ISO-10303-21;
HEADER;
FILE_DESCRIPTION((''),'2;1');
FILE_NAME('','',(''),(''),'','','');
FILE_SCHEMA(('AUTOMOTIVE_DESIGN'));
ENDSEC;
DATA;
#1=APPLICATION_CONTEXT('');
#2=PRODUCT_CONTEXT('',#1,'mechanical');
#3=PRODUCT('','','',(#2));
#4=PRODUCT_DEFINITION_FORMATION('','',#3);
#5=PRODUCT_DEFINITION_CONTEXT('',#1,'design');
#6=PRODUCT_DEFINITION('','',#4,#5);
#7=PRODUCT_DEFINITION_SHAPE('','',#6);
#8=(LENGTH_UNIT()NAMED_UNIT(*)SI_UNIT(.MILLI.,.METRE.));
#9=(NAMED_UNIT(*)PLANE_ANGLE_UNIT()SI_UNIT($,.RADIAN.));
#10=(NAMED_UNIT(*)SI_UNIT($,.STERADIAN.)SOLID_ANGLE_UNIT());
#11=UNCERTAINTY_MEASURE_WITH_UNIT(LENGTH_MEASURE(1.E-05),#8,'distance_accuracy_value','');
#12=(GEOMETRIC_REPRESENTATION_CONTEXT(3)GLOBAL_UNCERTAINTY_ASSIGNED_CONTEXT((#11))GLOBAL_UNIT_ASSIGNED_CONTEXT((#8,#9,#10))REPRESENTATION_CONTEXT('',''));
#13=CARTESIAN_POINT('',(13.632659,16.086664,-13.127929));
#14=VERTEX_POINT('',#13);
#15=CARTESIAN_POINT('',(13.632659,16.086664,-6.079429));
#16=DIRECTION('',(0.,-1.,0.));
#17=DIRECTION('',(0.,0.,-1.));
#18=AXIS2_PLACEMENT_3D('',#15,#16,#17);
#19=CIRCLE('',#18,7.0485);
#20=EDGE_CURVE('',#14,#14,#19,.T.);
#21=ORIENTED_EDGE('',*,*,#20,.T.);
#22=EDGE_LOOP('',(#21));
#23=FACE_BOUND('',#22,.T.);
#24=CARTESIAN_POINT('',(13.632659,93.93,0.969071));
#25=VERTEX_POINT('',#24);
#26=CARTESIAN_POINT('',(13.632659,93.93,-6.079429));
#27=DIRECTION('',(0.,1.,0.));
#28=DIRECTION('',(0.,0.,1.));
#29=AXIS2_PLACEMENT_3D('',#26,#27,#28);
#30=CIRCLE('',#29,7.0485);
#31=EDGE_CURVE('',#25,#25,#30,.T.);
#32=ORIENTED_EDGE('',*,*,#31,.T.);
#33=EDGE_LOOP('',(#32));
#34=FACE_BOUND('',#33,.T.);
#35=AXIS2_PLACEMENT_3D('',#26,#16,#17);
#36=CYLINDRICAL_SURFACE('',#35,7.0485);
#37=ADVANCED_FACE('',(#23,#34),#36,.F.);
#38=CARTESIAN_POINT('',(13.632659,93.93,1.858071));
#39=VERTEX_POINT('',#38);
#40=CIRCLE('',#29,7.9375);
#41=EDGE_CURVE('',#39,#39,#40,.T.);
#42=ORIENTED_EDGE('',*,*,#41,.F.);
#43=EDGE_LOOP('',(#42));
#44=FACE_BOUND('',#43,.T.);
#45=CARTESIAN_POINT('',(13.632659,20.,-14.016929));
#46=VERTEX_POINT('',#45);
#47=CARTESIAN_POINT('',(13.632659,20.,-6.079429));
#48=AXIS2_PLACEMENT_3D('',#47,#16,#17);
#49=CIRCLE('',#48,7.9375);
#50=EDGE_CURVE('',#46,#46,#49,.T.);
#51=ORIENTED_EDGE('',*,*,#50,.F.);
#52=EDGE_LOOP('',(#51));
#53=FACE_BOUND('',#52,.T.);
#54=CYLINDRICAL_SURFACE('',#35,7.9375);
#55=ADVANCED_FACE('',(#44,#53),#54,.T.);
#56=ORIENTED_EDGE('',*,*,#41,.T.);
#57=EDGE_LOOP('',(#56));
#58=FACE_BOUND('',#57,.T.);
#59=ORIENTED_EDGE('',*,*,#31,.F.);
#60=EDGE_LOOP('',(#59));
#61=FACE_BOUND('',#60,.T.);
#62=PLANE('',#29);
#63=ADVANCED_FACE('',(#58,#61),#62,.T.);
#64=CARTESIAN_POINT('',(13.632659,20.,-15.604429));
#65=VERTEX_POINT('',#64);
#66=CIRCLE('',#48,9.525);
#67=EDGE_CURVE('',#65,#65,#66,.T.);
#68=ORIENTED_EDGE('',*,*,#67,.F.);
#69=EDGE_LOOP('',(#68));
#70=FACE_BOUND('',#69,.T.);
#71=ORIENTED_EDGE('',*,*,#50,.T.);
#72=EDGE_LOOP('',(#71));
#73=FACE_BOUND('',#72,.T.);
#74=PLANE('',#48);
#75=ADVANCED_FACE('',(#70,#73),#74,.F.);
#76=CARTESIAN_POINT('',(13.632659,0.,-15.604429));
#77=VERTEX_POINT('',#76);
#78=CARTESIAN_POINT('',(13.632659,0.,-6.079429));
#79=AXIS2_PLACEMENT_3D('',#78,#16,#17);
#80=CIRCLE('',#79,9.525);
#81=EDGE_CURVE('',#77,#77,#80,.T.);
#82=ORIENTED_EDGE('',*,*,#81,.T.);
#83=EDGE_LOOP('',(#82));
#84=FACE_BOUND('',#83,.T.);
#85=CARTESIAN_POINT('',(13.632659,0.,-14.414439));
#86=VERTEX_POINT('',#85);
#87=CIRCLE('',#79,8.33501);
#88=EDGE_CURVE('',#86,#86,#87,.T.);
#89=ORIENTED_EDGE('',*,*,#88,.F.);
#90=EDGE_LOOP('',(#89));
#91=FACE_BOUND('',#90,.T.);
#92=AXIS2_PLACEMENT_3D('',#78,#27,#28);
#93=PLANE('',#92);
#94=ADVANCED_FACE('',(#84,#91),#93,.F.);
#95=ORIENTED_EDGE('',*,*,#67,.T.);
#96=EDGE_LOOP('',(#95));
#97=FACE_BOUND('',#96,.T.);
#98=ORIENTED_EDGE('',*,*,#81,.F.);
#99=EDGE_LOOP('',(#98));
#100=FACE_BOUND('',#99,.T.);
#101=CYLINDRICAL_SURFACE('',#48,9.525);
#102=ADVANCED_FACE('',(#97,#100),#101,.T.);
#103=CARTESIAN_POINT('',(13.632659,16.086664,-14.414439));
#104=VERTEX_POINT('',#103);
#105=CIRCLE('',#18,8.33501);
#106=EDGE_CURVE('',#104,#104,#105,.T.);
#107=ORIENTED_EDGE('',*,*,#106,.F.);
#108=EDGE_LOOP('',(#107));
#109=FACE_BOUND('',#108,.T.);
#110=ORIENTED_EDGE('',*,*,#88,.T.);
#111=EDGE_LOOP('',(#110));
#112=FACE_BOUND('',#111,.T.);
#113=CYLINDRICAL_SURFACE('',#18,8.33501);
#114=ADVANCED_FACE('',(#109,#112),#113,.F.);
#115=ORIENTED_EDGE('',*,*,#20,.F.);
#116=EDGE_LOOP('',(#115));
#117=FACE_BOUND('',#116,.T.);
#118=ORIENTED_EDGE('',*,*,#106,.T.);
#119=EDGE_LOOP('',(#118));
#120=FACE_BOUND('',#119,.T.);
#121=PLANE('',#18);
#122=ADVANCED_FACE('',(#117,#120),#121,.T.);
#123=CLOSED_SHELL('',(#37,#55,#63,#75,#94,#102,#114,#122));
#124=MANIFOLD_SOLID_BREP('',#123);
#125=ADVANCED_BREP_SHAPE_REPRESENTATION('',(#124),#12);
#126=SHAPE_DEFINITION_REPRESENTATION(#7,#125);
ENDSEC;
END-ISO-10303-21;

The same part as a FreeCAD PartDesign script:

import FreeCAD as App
import Part
import Sketcher
Q = App.Units.Quantity

doc = App.newDocument("Part")
body = doc.addObject("PartDesign::Body", "Body")

sketch1 = body.newObject("Sketcher::SketchObject", "Sketch")
sketch1.AttachmentSupport = (doc.getObject("XZ_Plane"), [""])
sketch1.MapMode = "FlatFace"
sketch1.addGeometry(Part.Circle(App.Vector(14, -6, 0), App.Vector(0, 0, 1), 8), False)
sketch1.addGeometry(Part.Circle(App.Vector(14, -6, 0), App.Vector(0, 0, 1), 7), False)
sketch1.addConstraint(Sketcher.Constraint("Coincident", 1, 3, 0, 3))
sketch1.addConstraint(Sketcher.Constraint("Diameter", 0, Q("0.625 in")))
sketch1.addConstraint(Sketcher.Constraint("Diameter", 1, Q("0.555 in")))
sketch1.addConstraint(Sketcher.Constraint("DistanceX", -1, 1, 0, 3, Q("13.632659 mm")))
sketch1.addConstraint(Sketcher.Constraint("DistanceY", 0, 3, -1, 1, Q("6.079429 mm")))
pad1 = body.newObject("PartDesign::Pad", "Pad")
pad1.Profile = sketch1
pad1.Length = 93.93
pad1.Reversed = True

sketch2 = body.newObject("Sketcher::SketchObject", "Sketch001")
sketch2.AttachmentSupport = (doc.getObject("XZ_Plane"), [""])
sketch2.MapMode = "FlatFace"
sketch2.addGeometry(Part.Circle(App.Vector(14, -6, 0), App.Vector(0, 0, 1), 10), False)
sketch2.addGeometry(Part.Circle(App.Vector(14, -6, 0), App.Vector(0, 0, 1), 8), False)
sketch2.addConstraint(Sketcher.Constraint("Coincident", 1, 3, 0, 3))
sketch2.addConstraint(Sketcher.Constraint("Diameter", 0, Q("0.75 in")))
sketch2.addConstraint(Sketcher.Constraint("Diameter", 1, Q("0.625 in")))
sketch2.addConstraint(Sketcher.Constraint("DistanceX", -1, 1, 0, 3, Q("13.632659 mm")))
sketch2.addConstraint(Sketcher.Constraint("DistanceY", 0, 3, -1, 1, Q("6.079429 mm")))
pad2 = body.newObject("PartDesign::Pad", "Pad001")
pad2.Profile = sketch2
pad2.Length = 20
pad2.Reversed = True

sketch3 = body.newObject("Sketcher::SketchObject", "Sketch002")
sketch3.AttachmentSupport = (doc.getObject("XZ_Plane"), [""])
sketch3.MapMode = "FlatFace"
sketch3.addGeometry(Part.Circle(App.Vector(14, -6, 0), App.Vector(0, 0, 1), 8), False)
sketch3.addConstraint(Sketcher.Constraint("Diameter", 0, Q("0.6563 in")))
sketch3.addConstraint(Sketcher.Constraint("DistanceX", -1, 1, 0, 3, Q("13.632659 mm")))
sketch3.addConstraint(Sketcher.Constraint("DistanceY", 0, 3, -1, 1, Q("6.079429 mm")))
pocket1 = body.newObject("PartDesign::Pocket", "Pocket")
pocket1.Profile = sketch3
pocket1.Length = 16.086664

doc.recompute()
